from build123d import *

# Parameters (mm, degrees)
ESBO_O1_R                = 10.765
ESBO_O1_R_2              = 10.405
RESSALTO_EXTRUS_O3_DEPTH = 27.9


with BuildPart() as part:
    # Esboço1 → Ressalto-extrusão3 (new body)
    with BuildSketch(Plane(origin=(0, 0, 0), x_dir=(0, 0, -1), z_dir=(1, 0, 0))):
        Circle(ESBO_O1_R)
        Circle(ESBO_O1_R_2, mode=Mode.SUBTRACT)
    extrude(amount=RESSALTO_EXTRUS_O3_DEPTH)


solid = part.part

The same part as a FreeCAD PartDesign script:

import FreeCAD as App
import Part
import Sketcher
from FreeCAD import Vector
Q = App.Units.Quantity

doc = App.newDocument("Part")
body = doc.addObject("PartDesign::Body", "Body")

# Sketch on YZ plane
sketch1 = doc.addObject("Sketcher::SketchObject", "Sketch")
body.addObject(sketch1)
sketch1.AttachmentSupport = (doc.YZ_Plane, [""])
sketch1.MapMode = "FlatFace"
sketch1.addGeometry([
    Part.Circle(Vector(0, 0, 0), Vector(0, 0, 1), 11),
    Part.Circle(Vector(0, 0, 0), Vector(0, 0, 1), 10),
], False)
sketch1.addConstraint([
    Sketcher.Constraint("Coincident", 0, 3, -1, 1),
    Sketcher.Constraint("Coincident", 1, 3, -1, 1),
    Sketcher.Constraint("Diameter", 0, Q("21.53 mm")),
    Sketcher.Constraint("Diameter", 1, Q("20.81 mm")),
])
pad1 = doc.addObject("PartDesign::Pad", "Pad")
body.addObject(pad1)
pad1.Profile = sketch1
pad1.Length = 27.9

doc.recompute()
